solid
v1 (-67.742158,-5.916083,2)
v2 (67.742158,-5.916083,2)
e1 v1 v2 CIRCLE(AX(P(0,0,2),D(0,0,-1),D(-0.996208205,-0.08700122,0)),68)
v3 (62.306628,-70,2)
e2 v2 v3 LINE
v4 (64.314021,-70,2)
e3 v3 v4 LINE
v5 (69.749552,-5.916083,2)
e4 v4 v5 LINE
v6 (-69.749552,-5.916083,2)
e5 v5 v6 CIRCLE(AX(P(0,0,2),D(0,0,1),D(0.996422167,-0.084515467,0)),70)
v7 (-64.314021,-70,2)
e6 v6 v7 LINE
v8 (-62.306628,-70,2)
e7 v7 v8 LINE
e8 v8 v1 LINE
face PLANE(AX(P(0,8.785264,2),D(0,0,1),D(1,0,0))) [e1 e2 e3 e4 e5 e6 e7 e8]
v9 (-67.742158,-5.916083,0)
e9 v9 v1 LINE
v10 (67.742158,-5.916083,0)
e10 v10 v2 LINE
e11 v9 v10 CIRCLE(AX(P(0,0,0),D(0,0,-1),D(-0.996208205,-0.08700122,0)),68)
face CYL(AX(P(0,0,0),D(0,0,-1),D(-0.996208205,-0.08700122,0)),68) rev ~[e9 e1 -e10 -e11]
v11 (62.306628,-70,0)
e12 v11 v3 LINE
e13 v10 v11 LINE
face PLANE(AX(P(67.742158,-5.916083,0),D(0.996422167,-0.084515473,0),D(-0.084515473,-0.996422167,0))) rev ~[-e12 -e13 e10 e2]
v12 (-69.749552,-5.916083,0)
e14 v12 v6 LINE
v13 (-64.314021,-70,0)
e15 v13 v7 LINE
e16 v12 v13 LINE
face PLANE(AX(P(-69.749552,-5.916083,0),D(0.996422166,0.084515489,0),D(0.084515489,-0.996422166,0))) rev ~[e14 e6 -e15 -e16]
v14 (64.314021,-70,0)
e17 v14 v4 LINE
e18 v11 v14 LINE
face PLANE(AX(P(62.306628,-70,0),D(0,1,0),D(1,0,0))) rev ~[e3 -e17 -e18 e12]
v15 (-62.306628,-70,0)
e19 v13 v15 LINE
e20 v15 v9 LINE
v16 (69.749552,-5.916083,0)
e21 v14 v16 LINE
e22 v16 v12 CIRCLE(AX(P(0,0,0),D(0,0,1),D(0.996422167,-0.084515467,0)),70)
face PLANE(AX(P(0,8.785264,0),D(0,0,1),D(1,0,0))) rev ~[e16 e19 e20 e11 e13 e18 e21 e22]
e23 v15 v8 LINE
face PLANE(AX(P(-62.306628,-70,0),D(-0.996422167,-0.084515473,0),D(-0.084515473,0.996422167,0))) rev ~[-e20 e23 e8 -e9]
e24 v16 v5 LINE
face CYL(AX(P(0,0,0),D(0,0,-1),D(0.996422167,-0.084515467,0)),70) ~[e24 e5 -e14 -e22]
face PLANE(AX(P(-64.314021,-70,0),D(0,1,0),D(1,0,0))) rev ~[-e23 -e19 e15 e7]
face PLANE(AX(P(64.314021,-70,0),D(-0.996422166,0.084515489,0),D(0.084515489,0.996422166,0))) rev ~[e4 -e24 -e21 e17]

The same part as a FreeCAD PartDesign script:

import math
import FreeCAD as App
import Part
import Sketcher

doc = App.newDocument("Part")
params = doc.addObject("Spreadsheet::Sheet", "Params")
for row, (alias, value) in enumerate([
    ("sketch1_radius", "70 mm"),
    ("sketch1_radius2", "68 mm"),
    ("pad1_length", "2 mm"),
], start=1):
    params.set(f"A{row}", alias)
    params.set(f"B{row}", "=" + value)
    params.setAlias(f"B{row}", alias)

body = doc.addObject("PartDesign::Body", "Body")

# Sketch on XY plane
sketch1 = body.newObject("Sketcher::SketchObject", "Sketch")
sketch1.AttachmentSupport = (doc.getObject("XY_Plane"), [""])
sketch1.MapMode = "FlatFace"
sketch1.addGeometry(Part.LineSegment(App.Vector(64.3, -70, 0), App.Vector(69.7, -5.9, 0)), False)
sketch1.addGeometry(Part.ArcOfCircle(Part.Circle(App.Vector(0, 0, 0), App.Vector(0, 0, 1), 70), math.radians(-5), math.radians(185)), False)
sketch1.addGeometry(Part.LineSegment(App.Vector(-69.7, -5.9, 0), App.Vector(-64.3, -70, 0)), False)
sketch1.addGeometry(Part.LineSegment(App.Vector(-64.3, -70, 0), App.Vector(-62.3, -70, 0)), False)
sketch1.addGeometry(Part.LineSegment(App.Vector(-62.3, -70, 0), App.Vector(-67.7, -5.9, 0)), False)
sketch1.addGeometry(Part.ArcOfCircle(Part.Circle(App.Vector(0, 0, 0), App.Vector(0, 0, 1), 68), math.radians(-5), math.radians(185)), False)
sketch1.addGeometry(Part.LineSegment(App.Vector(67.7, -5.9, 0), App.Vector(62.3, -70, 0)), False)
sketch1.addGeometry(Part.LineSegment(App.Vector(62.3, -70, 0), App.Vector(64.3, -70, 0)), False)
sketch1.addConstraint(Sketcher.Constraint("Tangent", 0, 2, 1, 1))
sketch1.addConstraint(Sketcher.Constraint("Tangent", 1, 2, 2, 1))
sketch1.addConstraint(Sketcher.Constraint("Coincident", 2, 2, 3, 1))
sketch1.addConstraint(Sketcher.Constraint("Coincident", 3, 2, 4, 1))
sketch1.addConstraint(Sketcher.Constraint("Coincident", 4, 2, 5, 2))
sketch1.addConstraint(Sketcher.Constraint("Coincident", 5, 1, 6, 1))
sketch1.addConstraint(Sketcher.Constraint("Coincident", 6, 2, 7, 1))
sketch1.addConstraint(Sketcher.Constraint("Coincident", 7, 2, 0, 1))
sketch1.addConstraint(Sketcher.Constraint("Horizontal", 3))
sketch1.addConstraint(Sketcher.Constraint("Horizontal", 7))
sketch1.addConstraint(Sketcher.Constraint("Coincident", 1, 3, -1, 1))
sketch1.addConstraint(Sketcher.Constraint("Coincident", 5, 3, -1, 1))
sketch1.addConstraint(Sketcher.Constraint("Symmetric", 3, 2, 6, 2, -2))
sketch1.addConstraint(Sketcher.Constraint("Parallel", 2, 4))
sketch1.addConstraint(Sketcher.Constraint("Parallel", 0, 6))
sketch1.addConstraint(Sketcher.Constraint("Horizontal", 1, 2, 4, 2))
sketch1.addConstraint(Sketcher.Constraint("Horizontal", 4, 2, 5, 1))
sketch1.addConstraint(Sketcher.Constraint("Radius", 1, 70.0))
sketch1.addConstraint(Sketcher.Constraint("Radius", 5, 68.0))
sketch1.addConstraint(Sketcher.Constraint("DistanceY", 2, 2, -1, 1, 70.0))
sketch1.addConstraint(Sketcher.Constraint("Distance", 0, 64.314022))
sketch1.setExpression("Constraints[17]", "Params.sketch1_radius")
sketch1.setExpression("Constraints[18]", "Params.sketch1_radius2")
pad1 = body.newObject("PartDesign::Pad", "Pad")
pad1.Profile = sketch1
pad1.setExpression("Length", "Params.pad1_length")

doc.recompute()
